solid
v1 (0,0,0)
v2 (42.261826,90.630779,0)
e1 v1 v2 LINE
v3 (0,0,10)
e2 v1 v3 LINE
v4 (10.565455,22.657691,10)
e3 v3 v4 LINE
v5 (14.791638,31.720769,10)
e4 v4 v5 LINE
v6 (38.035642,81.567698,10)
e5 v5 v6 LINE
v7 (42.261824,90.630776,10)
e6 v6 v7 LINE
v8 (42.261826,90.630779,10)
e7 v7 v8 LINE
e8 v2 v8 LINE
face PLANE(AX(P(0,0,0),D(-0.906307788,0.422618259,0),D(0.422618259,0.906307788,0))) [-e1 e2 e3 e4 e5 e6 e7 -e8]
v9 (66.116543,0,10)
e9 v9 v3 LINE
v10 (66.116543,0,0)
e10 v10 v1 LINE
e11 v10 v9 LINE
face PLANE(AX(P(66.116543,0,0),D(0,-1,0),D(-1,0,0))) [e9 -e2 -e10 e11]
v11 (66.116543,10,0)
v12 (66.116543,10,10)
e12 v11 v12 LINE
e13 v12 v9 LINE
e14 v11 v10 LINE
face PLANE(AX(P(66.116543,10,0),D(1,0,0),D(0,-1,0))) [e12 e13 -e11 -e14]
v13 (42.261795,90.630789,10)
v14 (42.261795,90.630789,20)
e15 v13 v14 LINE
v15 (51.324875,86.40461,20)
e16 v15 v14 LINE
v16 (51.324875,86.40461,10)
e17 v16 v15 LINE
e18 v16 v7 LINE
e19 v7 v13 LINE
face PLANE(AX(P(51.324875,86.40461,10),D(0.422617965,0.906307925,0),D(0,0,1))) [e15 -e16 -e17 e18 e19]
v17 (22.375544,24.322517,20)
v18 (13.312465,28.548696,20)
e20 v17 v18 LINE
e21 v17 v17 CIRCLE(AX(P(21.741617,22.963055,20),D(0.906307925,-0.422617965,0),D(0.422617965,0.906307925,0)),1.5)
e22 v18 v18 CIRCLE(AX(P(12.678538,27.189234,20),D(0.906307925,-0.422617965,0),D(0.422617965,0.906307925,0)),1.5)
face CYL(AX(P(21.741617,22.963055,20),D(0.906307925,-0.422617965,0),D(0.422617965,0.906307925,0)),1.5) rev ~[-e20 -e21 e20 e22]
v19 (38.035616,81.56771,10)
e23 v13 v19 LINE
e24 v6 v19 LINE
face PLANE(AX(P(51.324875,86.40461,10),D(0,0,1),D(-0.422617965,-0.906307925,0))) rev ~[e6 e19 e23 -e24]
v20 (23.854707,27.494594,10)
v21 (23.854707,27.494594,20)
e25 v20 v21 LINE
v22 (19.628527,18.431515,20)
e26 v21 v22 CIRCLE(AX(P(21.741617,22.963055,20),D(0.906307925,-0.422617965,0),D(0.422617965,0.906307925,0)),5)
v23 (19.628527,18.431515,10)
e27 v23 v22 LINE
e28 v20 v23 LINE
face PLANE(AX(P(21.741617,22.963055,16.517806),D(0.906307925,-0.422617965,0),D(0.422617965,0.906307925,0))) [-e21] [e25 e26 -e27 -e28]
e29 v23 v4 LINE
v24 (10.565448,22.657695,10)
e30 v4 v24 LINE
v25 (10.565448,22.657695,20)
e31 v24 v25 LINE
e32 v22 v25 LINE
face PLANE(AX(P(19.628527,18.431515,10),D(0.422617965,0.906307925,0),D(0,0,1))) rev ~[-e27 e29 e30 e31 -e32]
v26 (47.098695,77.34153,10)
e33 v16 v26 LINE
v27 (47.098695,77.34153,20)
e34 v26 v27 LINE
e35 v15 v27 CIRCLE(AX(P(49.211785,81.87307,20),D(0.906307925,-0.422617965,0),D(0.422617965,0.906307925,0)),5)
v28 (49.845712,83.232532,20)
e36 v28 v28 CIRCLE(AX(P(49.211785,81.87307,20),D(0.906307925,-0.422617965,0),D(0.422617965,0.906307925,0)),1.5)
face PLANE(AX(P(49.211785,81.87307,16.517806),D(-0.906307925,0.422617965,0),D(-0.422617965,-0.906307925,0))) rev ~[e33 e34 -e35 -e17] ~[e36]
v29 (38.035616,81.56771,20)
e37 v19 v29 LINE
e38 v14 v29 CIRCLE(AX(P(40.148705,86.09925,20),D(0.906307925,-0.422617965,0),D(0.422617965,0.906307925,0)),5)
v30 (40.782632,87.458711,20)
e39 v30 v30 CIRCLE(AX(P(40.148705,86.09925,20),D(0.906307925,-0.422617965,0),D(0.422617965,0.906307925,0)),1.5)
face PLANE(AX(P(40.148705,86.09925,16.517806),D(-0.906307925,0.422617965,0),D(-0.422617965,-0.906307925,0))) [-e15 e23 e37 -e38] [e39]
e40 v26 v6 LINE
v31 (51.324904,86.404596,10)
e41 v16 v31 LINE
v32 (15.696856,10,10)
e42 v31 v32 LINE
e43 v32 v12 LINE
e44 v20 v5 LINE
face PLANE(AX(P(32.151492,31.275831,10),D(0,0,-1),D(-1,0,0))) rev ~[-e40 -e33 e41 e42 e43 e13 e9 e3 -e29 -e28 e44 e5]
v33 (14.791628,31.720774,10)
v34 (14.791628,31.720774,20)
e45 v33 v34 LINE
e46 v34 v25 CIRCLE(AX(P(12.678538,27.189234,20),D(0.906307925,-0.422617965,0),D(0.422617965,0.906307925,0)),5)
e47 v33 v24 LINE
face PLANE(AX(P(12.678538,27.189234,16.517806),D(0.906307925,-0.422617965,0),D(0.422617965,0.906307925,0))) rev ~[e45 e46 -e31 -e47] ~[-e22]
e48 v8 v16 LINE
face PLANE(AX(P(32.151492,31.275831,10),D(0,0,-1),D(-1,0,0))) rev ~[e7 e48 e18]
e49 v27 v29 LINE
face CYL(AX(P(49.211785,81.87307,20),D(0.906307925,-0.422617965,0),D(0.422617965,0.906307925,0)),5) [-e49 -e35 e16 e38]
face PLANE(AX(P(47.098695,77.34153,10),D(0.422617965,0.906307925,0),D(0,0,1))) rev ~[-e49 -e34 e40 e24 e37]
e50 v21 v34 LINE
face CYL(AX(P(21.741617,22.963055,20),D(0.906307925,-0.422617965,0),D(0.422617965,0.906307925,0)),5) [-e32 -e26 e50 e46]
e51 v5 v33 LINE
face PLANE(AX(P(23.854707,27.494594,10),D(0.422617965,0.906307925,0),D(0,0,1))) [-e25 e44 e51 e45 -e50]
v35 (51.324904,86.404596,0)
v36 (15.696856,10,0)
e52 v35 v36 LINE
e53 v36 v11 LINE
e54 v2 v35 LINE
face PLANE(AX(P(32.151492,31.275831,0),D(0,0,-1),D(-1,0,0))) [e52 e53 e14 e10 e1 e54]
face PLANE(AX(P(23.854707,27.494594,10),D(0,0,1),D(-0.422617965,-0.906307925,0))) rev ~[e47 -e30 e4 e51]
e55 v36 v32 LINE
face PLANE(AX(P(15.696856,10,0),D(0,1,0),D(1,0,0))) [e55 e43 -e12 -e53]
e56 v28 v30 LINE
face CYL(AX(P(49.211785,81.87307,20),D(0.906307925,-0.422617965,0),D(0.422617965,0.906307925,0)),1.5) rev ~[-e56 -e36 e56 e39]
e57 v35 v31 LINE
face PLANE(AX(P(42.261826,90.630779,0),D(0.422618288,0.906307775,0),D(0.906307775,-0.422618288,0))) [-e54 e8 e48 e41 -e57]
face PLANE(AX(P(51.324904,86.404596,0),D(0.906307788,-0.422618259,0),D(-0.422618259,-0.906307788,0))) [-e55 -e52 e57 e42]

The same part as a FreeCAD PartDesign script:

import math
import FreeCAD as App
import Part
import Sketcher
from FreeCAD import Vector
Q = App.Units.Quantity


def add_polygon(sketch, points):
    """Adds a closed chain of lines whose ends are joined by coincident constraints."""
    first, n = sketch.GeometryCount, len(points)
    for a, b in zip(points, points[1:] + points[:1]):
        sketch.addGeometry(Part.LineSegment(App.Vector(*a, 0), App.Vector(*b, 0)), False)
    for i in range(n):
        sketch.addConstraint(Sketcher.Constraint("Coincident", first + i, 2, first + (i + 1) % n, 1))

doc = App.newDocument("Part")
body = doc.addObject("PartDesign::Body", "Body")

# Sketch on XY plane
sketch1 = doc.addObject("Sketcher::SketchObject", "Sketch")
body.addObject(sketch1)
sketch1.AttachmentSupport = (doc.XY_Plane, [""])
sketch1.MapMode = "FlatFace"
add_polygon(sketch1, [(0, 0), (66, 0), (66, 10), (16, 10), (51, 86), (42, 91)])  # lines 0-5
sketch1.addConstraint(Sketcher.Constraint("Horizontal", 0))
sketch1.addConstraint(Sketcher.Constraint("Vertical", 1))
sketch1.addConstraint(Sketcher.Constraint("Horizontal", 2))
sketch1.addConstraint(Sketcher.Constraint("Coincident", 5, 2, -1, 1))
sketch1.addConstraint(Sketcher.Constraint("Perpendicular", 3, 4))
sketch1.addConstraint(Sketcher.Constraint("Perpendicular", 4, 5))
sketch1.addConstraint(Sketcher.Constraint("DistanceY", 1, 1, 1, 2, 10.0))
sketch1.addConstraint(Sketcher.Constraint("Angle", 3, Q("65 deg")))
sketch1.addConstraint(Sketcher.Constraint("Distance", 4, 10.0))
sketch1.addConstraint(Sketcher.Constraint("Distance", 5, 100.0))
sketch1.addConstraint(Sketcher.Constraint("DistanceX", 0, 1, 0, 2, 66.116543))
pad1 = doc.addObject("PartDesign::Pad", "Pad")
body.addObject(pad1)
pad1.Profile = sketch1
pad1.Length = 10

# Sketch on an angled plane
sketch2 = doc.addObject("Sketcher::SketchObject", "Sketch001")
body.addObject(sketch2)
sketch2.Placement = App.Placement(Vector(9.063078, -4.226183, 0), App.Rotation(Vector(0.422617965, 0.906307925, 0), Vector(0, 0, 0.999999999), Vector(0.906307925, -0.422617965, 0), "ZXY"))
sketch2.addGeometry(Part.LineSegment(Vector(90, 10, 0), Vector(100, 10, 0)), False)
sketch2.addGeometry(Part.LineSegment(Vector(100, 10, 0), Vector(100, 20, 0)), False)
sketch2.addGeometry(Part.ArcOfCircle(Part.Circle(Vector(95, 20, 0), Vector(0, 0, 1), 5), math.radians(0), math.radians(180)), False)
sketch2.addGeometry(Part.LineSegment(Vector(90, 20, 0), Vector(90, 10, 0)), False)
sketch2.addGeometry(Part.Circle(Vector(95, 20, 0), Vector(0, 0, 1), 1.5), False)
sketch2.addGeometry(Part.LineSegment(Vector(35, 10, 0), Vector(35, 20, 0)), False)
sketch2.addGeometry(Part.ArcOfCircle(Part.Circle(Vector(30, 20, 0), Vector(0, 0, 1), 5), math.radians(0), math.radians(180)), False)
sketch2.addGeometry(Part.LineSegment(Vector(25, 20, 0), Vector(25, 10, 0)), False)
sketch2.addGeometry(Part.LineSegment(Vector(25, 10, 0), Vector(35, 10, 0)), False)
sketch2.addGeometry(Part.Circle(Vector(30, 20, 0), Vector(0, 0, 1), 1.5), False)
sketch2.addConstraint(Sketcher.Constraint("Coincident", 0, 2, 1, 1))
sketch2.addConstraint(Sketcher.Constraint("Tangent", 1, 2, 2, 1))
sketch2.addConstraint(Sketcher.Constraint("Tangent", 2, 2, 3, 1))
sketch2.addConstraint(Sketcher.Constraint("Coincident", 3, 2, 0, 1))
sketch2.addConstraint(Sketcher.Constraint("Tangent", 5, 2, 6, 1))
sketch2.addConstraint(Sketcher.Constraint("Tangent", 6, 2, 7, 1))
sketch2.addConstraint(Sketcher.Constraint("Coincident", 7, 2, 8, 1))
sketch2.addConstraint(Sketcher.Constraint("Coincident", 8, 2, 5, 1))
sketch2.addConstraint(Sketcher.Constraint("Horizontal", 0))
sketch2.addConstraint(Sketcher.Constraint("Vertical", 1))
sketch2.addConstraint(Sketcher.Constraint("Vertical", 3))
sketch2.addConstraint(Sketcher.Constraint("Vertical", 5))
sketch2.addConstraint(Sketcher.Constraint("Vertical", 7))
sketch2.addConstraint(Sketcher.Constraint("Horizontal", 8))
sketch2.addConstraint(Sketcher.Constraint("Coincident", 4, 3, 2, 3))
sketch2.addConstraint(Sketcher.Constraint("Coincident", 9, 3, 6, 3))
sketch2.addConstraint(Sketcher.Constraint("Equal", 2, 6))
sketch2.addConstraint(Sketcher.Constraint("Equal", 4, 9))
sketch2.addConstraint(Sketcher.Constraint("Horizontal", 4, 3, 6, 3))
sketch2.addConstraint(Sketcher.Constraint("Horizontal", 3, 2, 7, 2))
sketch2.addConstraint(Sketcher.Constraint("Equal", 8, 1))
sketch2.addConstraint(Sketcher.Constraint("Diameter", 4, 3.0))
sketch2.addConstraint(Sketcher.Constraint("Radius", 2, 5.0))
sketch2.addConstraint(Sketcher.Constraint("DistanceX", -1, 1, 2, 3, 95.0))
sketch2.addConstraint(Sketcher.Constraint("DistanceY", -1, 1, 2, 3, 20.0))
sketch2.addConstraint(Sketcher.Constraint("DistanceX", -1, 1, 6, 3, 30.0))
pad2 = doc.addObject("PartDesign::Pad", "Pad001")
body.addObject(pad2)
pad2.Profile = sketch2
pad2.Length = 10
pad2.Reversed = True

doc.recompute()
